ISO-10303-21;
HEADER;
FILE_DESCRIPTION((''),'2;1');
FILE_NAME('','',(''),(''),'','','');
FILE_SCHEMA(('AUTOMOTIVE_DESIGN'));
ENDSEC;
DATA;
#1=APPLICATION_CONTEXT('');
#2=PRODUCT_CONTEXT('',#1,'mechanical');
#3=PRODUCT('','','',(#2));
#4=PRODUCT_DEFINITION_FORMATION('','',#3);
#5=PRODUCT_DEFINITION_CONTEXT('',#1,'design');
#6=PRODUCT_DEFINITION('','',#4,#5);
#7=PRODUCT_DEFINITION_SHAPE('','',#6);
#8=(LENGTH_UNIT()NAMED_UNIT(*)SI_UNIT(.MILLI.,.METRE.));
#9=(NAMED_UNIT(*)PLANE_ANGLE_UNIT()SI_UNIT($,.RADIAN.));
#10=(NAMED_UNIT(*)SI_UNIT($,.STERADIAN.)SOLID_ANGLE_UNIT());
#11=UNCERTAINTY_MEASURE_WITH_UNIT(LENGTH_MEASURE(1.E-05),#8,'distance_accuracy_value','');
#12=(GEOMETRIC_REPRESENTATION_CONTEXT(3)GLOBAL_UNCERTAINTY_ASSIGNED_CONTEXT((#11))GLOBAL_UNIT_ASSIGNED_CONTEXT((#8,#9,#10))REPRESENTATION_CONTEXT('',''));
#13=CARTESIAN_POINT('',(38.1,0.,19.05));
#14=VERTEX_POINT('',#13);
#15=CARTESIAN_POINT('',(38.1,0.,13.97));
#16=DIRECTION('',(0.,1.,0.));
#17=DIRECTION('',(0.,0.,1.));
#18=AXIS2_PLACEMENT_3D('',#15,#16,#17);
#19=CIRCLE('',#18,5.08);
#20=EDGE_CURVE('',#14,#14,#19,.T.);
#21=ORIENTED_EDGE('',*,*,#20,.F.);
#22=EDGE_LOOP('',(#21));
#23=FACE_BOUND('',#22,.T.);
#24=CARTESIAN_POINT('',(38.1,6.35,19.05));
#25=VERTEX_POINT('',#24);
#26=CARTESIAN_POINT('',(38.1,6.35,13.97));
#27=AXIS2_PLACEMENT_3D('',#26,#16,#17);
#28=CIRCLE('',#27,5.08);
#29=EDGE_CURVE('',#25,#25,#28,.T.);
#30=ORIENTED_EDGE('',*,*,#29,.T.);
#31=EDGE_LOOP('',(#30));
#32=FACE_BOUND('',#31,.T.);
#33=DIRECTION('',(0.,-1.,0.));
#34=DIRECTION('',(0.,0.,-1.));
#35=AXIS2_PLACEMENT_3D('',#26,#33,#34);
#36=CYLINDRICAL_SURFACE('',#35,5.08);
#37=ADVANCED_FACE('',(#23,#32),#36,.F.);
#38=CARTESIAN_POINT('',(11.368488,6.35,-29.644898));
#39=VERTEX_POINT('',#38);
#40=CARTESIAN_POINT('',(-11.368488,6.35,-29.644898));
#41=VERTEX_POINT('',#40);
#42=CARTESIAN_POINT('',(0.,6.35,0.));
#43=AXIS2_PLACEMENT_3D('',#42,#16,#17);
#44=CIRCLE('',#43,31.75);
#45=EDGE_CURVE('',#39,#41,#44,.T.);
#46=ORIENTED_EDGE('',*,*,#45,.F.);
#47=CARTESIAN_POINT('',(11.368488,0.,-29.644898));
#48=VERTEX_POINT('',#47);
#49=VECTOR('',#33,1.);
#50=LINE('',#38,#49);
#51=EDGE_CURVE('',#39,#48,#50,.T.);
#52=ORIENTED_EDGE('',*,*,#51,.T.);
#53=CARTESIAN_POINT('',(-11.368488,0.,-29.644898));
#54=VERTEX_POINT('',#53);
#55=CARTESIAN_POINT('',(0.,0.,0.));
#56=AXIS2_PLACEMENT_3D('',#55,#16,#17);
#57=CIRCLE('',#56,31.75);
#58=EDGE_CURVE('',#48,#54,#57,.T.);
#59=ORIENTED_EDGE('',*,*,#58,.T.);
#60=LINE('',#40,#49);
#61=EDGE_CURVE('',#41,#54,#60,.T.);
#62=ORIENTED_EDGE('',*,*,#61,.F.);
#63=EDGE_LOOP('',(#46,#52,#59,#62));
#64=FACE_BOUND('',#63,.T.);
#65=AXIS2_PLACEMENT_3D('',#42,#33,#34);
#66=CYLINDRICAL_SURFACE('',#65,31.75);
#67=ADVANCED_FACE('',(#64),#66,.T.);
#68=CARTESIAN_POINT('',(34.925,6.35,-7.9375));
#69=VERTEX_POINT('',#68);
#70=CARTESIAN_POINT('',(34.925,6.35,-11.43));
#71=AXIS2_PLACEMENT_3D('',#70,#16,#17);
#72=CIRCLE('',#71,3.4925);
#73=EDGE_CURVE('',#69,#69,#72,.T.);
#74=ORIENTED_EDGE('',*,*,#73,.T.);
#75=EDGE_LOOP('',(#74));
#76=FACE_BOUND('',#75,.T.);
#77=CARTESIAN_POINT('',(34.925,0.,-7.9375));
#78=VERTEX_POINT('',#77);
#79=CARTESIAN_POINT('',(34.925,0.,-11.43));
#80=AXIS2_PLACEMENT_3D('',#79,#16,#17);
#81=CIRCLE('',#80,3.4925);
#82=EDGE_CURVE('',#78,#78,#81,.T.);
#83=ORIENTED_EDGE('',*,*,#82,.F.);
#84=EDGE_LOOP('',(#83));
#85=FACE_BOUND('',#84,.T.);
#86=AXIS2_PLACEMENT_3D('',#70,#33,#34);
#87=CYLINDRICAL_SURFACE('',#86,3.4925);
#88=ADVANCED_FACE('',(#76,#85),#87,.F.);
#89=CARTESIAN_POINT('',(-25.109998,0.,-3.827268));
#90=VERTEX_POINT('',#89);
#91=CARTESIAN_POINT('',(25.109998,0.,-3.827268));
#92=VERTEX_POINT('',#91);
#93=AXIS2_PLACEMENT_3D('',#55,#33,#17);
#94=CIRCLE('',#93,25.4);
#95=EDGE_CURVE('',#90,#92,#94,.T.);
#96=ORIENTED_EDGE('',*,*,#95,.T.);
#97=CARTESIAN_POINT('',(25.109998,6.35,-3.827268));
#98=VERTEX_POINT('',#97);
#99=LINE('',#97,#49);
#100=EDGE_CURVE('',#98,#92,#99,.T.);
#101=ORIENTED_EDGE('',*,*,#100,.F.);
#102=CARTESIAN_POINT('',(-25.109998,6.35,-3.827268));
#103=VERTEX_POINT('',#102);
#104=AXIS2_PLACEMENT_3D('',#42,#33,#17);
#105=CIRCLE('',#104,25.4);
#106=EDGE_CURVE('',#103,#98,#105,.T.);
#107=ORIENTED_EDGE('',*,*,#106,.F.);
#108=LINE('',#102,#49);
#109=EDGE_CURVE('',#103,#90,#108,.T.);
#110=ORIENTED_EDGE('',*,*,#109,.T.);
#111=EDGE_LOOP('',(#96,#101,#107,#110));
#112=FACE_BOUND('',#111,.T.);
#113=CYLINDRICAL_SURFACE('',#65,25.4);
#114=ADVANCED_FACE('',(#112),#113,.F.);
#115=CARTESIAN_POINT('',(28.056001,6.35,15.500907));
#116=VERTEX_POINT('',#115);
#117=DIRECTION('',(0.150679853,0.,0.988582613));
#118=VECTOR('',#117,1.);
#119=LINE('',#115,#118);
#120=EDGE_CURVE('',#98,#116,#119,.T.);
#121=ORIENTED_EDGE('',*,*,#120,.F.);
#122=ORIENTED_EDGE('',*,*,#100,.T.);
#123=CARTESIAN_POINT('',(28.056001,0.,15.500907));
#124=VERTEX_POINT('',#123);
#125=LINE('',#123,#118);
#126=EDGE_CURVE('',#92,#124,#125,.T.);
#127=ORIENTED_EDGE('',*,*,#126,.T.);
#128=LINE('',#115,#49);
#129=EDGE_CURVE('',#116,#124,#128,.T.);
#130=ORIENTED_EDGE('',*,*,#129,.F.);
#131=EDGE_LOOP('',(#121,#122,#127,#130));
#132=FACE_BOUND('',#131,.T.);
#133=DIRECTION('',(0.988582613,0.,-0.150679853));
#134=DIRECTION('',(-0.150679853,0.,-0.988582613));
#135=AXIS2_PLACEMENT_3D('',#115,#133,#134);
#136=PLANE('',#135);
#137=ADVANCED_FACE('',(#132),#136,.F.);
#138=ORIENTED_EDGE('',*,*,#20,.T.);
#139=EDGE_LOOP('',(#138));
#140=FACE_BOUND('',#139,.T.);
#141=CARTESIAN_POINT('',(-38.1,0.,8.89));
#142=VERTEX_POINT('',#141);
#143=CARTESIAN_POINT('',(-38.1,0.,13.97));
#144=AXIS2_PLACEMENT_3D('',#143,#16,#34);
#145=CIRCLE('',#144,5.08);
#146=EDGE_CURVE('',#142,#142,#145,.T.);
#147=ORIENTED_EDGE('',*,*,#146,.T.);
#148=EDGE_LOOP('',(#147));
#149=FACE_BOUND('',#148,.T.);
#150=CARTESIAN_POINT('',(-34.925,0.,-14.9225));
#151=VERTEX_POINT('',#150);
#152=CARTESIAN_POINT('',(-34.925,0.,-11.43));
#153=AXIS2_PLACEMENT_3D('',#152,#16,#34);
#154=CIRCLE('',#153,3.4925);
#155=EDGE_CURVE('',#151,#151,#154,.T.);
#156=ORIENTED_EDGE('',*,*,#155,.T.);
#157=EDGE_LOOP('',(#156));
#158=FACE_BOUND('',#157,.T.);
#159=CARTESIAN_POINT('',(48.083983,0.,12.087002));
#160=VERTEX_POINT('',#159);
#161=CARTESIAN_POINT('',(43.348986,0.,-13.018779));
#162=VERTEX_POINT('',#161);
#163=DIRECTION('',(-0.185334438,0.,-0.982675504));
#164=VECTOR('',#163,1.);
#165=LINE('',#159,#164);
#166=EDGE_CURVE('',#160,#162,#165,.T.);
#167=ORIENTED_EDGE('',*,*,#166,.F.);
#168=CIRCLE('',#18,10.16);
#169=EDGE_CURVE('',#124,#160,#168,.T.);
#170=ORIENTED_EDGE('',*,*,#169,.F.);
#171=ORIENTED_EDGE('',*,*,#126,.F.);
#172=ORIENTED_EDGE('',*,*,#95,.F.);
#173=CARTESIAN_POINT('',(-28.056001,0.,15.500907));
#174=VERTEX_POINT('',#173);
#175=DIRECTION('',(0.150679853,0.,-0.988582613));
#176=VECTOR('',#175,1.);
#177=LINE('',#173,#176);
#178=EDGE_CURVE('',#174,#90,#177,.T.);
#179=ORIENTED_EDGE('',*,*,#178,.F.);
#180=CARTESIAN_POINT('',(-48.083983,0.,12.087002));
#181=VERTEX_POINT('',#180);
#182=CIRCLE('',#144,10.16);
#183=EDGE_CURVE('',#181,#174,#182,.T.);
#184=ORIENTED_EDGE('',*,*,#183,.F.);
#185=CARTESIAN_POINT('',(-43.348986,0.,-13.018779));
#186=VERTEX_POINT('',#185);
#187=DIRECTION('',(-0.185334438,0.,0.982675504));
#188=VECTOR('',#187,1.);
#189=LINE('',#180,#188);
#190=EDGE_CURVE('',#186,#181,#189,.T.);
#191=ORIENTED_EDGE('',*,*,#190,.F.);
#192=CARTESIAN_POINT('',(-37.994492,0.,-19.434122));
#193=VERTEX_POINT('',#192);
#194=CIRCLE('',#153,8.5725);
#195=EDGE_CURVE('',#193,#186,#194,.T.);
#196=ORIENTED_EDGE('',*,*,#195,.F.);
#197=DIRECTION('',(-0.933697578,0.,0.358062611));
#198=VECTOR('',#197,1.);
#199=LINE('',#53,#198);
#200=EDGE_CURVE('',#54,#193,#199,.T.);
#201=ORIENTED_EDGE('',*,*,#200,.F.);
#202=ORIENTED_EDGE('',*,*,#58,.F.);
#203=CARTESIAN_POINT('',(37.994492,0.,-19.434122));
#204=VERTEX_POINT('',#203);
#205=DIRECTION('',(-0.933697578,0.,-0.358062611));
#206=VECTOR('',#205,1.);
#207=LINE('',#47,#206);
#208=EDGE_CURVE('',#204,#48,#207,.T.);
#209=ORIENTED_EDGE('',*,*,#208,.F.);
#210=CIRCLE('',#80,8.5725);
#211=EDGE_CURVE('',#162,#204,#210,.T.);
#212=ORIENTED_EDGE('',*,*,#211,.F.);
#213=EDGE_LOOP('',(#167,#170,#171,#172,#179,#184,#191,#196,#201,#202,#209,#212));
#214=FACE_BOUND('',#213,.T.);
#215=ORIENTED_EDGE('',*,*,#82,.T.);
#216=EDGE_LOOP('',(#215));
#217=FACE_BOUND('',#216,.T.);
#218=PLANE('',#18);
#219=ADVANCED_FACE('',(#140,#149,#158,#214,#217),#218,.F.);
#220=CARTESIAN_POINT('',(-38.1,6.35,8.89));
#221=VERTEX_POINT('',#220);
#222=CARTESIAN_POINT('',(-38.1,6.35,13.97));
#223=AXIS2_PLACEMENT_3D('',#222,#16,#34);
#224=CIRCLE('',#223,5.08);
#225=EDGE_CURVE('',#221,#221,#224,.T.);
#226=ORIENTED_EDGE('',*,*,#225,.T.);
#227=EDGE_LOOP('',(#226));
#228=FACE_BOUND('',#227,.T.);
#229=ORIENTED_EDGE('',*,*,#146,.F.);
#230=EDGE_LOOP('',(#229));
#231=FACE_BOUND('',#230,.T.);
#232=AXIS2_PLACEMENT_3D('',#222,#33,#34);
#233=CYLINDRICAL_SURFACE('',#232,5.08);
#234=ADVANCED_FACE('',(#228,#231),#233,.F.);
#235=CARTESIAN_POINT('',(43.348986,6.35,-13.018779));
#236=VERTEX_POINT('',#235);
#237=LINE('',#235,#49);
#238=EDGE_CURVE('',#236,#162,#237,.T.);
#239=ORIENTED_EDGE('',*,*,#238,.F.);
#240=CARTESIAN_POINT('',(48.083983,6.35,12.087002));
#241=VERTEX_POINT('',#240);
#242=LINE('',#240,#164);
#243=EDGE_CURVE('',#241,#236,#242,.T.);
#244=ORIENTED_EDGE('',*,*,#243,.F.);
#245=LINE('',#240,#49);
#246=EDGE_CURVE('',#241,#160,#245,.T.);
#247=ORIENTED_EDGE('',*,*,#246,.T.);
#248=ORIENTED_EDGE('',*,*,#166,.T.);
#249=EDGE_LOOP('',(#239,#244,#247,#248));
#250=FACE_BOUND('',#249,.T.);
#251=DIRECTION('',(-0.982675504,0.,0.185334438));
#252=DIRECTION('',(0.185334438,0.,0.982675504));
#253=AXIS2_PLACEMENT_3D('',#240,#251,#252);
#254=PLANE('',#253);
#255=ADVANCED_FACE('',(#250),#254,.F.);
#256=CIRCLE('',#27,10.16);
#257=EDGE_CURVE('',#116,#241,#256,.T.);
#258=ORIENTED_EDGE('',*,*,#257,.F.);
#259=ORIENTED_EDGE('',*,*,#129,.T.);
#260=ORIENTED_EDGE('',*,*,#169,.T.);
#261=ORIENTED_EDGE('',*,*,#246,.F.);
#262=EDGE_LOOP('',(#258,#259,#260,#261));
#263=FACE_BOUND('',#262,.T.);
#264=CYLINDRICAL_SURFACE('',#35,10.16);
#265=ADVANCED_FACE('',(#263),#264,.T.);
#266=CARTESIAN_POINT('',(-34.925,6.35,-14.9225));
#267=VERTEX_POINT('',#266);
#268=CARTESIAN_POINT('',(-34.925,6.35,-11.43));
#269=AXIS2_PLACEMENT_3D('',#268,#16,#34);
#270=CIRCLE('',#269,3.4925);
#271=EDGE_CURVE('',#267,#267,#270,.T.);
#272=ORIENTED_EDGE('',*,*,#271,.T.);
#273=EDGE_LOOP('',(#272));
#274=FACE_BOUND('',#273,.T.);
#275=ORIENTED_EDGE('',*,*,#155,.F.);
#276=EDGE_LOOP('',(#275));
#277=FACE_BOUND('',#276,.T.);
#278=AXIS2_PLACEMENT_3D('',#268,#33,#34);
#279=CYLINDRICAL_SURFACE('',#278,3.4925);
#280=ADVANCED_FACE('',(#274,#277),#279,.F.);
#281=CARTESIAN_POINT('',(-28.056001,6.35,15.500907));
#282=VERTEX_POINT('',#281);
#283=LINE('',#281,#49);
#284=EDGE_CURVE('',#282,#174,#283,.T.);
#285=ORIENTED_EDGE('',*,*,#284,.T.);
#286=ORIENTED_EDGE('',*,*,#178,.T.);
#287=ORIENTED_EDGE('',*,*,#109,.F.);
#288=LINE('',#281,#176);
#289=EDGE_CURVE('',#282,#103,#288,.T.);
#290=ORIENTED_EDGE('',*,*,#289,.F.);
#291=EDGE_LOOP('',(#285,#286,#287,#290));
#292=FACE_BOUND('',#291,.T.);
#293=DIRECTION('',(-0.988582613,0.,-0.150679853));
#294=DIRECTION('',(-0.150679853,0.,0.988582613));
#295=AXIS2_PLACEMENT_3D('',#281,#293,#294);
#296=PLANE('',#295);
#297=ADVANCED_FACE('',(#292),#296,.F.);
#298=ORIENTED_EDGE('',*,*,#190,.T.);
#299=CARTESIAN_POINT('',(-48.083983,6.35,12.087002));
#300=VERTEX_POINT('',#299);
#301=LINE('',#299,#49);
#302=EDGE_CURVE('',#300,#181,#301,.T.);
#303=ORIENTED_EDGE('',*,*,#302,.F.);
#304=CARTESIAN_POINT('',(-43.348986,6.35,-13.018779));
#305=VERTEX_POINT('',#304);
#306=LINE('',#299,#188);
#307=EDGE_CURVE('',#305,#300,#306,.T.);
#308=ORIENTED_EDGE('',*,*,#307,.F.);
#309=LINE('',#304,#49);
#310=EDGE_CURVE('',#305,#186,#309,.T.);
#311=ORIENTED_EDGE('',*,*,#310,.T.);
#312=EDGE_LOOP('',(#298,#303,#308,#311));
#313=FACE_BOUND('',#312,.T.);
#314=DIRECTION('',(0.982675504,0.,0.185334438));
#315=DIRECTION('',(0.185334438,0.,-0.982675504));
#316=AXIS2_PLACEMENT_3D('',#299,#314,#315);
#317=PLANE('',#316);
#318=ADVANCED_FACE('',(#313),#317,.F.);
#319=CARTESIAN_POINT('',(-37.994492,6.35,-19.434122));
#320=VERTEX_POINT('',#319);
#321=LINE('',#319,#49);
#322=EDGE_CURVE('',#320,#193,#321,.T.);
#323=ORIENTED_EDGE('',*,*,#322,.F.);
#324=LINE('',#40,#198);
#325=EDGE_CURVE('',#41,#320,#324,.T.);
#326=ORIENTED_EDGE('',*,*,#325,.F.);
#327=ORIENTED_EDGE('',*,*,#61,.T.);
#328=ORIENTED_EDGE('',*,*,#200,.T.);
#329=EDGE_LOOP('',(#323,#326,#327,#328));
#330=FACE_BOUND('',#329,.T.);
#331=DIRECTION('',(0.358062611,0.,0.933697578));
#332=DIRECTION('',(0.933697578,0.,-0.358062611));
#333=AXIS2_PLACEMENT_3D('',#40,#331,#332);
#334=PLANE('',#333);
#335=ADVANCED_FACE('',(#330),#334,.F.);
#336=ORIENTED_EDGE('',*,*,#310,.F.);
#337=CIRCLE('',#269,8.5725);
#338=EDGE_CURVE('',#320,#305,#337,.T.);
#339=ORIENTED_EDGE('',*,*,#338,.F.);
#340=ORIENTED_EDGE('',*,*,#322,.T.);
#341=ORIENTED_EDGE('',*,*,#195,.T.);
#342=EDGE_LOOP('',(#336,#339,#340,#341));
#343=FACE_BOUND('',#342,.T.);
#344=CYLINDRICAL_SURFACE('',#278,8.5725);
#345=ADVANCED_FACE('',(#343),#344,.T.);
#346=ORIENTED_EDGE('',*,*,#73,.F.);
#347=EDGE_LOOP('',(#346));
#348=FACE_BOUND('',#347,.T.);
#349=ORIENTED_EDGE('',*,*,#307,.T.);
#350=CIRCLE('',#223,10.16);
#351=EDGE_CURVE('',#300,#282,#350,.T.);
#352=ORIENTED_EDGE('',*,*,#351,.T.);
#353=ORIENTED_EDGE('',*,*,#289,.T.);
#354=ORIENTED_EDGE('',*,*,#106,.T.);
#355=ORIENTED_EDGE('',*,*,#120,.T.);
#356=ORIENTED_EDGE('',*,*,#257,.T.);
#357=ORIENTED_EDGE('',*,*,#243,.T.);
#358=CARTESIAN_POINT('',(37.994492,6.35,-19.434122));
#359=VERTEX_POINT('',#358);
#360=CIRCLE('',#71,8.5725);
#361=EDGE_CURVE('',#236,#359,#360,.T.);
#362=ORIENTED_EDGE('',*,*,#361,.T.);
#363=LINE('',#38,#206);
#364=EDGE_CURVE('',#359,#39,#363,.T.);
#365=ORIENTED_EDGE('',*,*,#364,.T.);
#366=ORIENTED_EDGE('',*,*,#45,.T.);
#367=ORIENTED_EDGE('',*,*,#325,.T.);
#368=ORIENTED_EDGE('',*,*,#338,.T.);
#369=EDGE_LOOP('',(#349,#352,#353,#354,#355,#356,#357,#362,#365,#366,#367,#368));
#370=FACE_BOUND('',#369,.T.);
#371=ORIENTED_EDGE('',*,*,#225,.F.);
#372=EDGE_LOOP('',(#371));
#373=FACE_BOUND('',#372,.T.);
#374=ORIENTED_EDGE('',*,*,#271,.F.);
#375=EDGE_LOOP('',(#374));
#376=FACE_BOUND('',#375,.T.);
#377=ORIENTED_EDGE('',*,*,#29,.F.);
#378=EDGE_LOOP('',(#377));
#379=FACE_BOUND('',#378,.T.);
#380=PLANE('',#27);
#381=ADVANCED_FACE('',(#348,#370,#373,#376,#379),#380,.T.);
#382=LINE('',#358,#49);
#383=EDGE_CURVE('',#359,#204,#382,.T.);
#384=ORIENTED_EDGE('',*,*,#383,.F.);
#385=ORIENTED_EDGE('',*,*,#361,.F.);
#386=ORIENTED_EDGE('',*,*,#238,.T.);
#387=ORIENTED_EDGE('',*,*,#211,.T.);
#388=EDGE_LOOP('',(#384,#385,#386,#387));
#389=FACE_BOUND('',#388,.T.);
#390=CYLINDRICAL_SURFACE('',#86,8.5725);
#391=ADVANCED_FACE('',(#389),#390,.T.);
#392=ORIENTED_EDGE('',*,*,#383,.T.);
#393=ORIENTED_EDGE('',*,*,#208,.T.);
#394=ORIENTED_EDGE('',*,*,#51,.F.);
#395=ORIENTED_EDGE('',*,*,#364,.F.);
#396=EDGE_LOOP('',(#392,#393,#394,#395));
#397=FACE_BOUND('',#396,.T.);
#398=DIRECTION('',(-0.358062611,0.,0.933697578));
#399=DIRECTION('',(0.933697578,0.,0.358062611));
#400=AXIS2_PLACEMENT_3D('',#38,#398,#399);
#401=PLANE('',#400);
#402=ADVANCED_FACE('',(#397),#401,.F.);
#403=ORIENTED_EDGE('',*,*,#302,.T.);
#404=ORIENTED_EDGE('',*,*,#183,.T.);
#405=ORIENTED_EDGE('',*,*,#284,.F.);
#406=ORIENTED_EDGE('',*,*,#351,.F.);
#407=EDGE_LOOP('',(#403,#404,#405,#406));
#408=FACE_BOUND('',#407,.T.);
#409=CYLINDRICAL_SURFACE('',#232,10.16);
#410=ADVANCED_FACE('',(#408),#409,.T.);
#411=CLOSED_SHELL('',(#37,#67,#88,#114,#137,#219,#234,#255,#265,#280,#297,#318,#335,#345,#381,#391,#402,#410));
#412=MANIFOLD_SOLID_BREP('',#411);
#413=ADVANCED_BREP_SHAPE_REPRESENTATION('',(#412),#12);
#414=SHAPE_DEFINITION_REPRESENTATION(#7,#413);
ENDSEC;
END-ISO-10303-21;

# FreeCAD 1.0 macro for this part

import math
import FreeCAD as App
import Part
import Sketcher
Q = App.Units.Quantity

doc = App.newDocument("Part")
body = doc.addObject("PartDesign::Body", "Body")

# Sketch on XZ plane
sketch1 = doc.addObject("Sketcher::SketchObject", "Sketch")
body.addObject(sketch1)
sketch1.AttachmentSupport = (doc.XZ_Plane, [""])
sketch1.MapMode = "FlatFace"
sketch1.addGeometry([
    Part.LineSegment(App.Vector(48.083983, 12.087002, 0), App.Vector(43.348986, -13.018779, 0)),  # 0
    Part.ArcOfCircle(Part.Circle(App.Vector(34.925, -11.43, 0), App.Vector(0, 0, 1), 8.5725), math.radians(-69.018738), math.radians(-10.680631)),  # 1
    Part.LineSegment(App.Vector(37.994492, -19.434122, 0), App.Vector(11.368488, -29.644898, 0)),  # 2
    Part.ArcOfCircle(Part.Circle(App.Vector(0, 0, 0), App.Vector(0, 0, 1), 31.75), math.radians(-110.981262), math.radians(-69.018738)),  # 3
    Part.LineSegment(App.Vector(-11.368488, -29.644898, 0), App.Vector(-37.994492, -19.434122, 0)),  # 4
    Part.ArcOfCircle(Part.Circle(App.Vector(-34.925, -11.43, 0), App.Vector(0, 0, 1), 8.5725), math.radians(-169.319369), math.radians(-110.981262)),  # 5
    Part.LineSegment(App.Vector(-43.348986, -13.018779, 0), App.Vector(-48.083983, 12.087002, 0)),  # 6
    Part.ArcOfCircle(Part.Circle(App.Vector(-38.1, 13.97, 0), App.Vector(0, 0, 1), 10.16), math.radians(8.666327), math.radians(190.680631)),  # 7
    Part.LineSegment(App.Vector(-28.056001, 15.500907, 0), App.Vector(-25.109998, -3.827268, 0)),  # 8
    Part.ArcOfCircle(Part.Circle(App.Vector(0, 0, 0), App.Vector(0, 0, 1), 25.4), math.radians(-171.333673), math.radians(-8.666327)),  # 9
    Part.LineSegment(App.Vector(25.109998, -3.827268, 0), App.Vector(28.056001, 15.500907, 0)),  # 10
    Part.ArcOfCircle(Part.Circle(App.Vector(38.1, 13.97, 0), App.Vector(0, 0, 1), 10.16), math.radians(-10.680631), math.radians(171.333673)),  # 11
    Part.Circle(App.Vector(-38.1, 13.97, 0), App.Vector(0, 0, 1), 5.08),  # 12
    Part.Circle(App.Vector(38.1, 13.97, 0), App.Vector(0, 0, 1), 5.08),  # 13
    Part.Circle(App.Vector(-34.925, -11.43, 0), App.Vector(0, 0, 1), 3.4925),  # 14
    Part.Circle(App.Vector(34.925, -11.43, 0), App.Vector(0, 0, 1), 3.4925),  # 15
], False)
sketch1.addConstraint([
    Sketcher.Constraint("Tangent", 0, 2, 1, 2),
    Sketcher.Constraint("Tangent", 1, 1, 2, 1),
    Sketcher.Constraint("Tangent", 2, 2, 3, 2),
    Sketcher.Constraint("Tangent", 3, 1, 4, 1),
    Sketcher.Constraint("Tangent", 4, 2, 5, 2),
    Sketcher.Constraint("Tangent", 5, 1, 6, 1),
    Sketcher.Constraint("Tangent", 6, 2, 7, 2),
    Sketcher.Constraint("Tangent", 7, 1, 8, 1),
    Sketcher.Constraint("Tangent", 8, 2, 9, 1),
    Sketcher.Constraint("Tangent", 9, 2, 10, 1),
    Sketcher.Constraint("Tangent", 10, 2, 11, 2),
    Sketcher.Constraint("Tangent", 11, 1, 0, 1),
    Sketcher.Constraint("Coincident", 3, 3, -1, 1),
    Sketcher.Constraint("Coincident", 9, 3, -1, 1),
    Sketcher.Constraint("Coincident", 12, 3, 7, 3),
    Sketcher.Constraint("Coincident", 13, 3, 11, 3),
    Sketcher.Constraint("Coincident", 14, 3, 5, 3),
    Sketcher.Constraint("Coincident", 15, 3, 1, 3),
    Sketcher.Constraint("Equal", 1, 5),
    Sketcher.Constraint("Equal", 7, 11),
    Sketcher.Constraint("Equal", 12, 13),
    Sketcher.Constraint("Equal", 14, 15),
    Sketcher.Constraint("Symmetric", 1, 3, 5, 3, -2),
    Sketcher.Constraint("Symmetric", 7, 3, 11, 3, -2),
    Sketcher.Constraint("Radius", 9, Q("1 in")),
    Sketcher.Constraint("Diameter", 12, Q("0.4 in")),
    Sketcher.Constraint("Radius", 7, Q("0.4 in")),
    Sketcher.Constraint("Radius", 3, Q("1.25 in")),
    Sketcher.Constraint("Diameter", 14, Q("0.275 in")),
    Sketcher.Constraint("DistanceY", 5, 3, 7, 3, Q("1 in")),
    Sketcher.Constraint("DistanceX", 7, 3, 11, 3, Q("3 in")),
    Sketcher.Constraint("Radius", 1, Q("0.3375 in")),
    Sketcher.Constraint("DistanceY", 1, 3, -1, 1, Q("0.45 in")),
    Sketcher.Constraint("DistanceX", 5, 3, 1, 3, Q("2.75 in")),
])
pad1 = doc.addObject("PartDesign::Pad", "Pad")
body.addObject(pad1)
pad1.Profile = sketch1
pad1.Length = Q("0.25 in")
pad1.Reversed = True

doc.recompute()
